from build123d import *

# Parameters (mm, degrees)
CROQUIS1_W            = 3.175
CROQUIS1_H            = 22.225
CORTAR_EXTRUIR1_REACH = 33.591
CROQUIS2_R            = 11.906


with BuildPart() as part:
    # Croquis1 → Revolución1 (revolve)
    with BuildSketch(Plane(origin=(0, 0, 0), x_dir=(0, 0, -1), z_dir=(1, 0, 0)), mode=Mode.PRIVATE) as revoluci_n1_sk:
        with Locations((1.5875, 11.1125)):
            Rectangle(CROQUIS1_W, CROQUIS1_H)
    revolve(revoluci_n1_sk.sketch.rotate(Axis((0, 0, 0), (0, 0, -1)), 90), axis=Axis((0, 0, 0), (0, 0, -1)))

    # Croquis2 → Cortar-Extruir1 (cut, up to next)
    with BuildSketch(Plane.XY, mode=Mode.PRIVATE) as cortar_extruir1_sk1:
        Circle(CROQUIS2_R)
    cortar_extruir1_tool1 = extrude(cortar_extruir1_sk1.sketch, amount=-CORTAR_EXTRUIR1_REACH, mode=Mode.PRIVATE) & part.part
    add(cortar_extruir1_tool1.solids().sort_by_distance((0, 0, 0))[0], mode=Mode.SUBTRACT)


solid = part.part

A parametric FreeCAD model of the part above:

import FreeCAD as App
import Part
import Sketcher
Q = App.Units.Quantity


def add_polygon(sketch, points):
    """Adds a closed chain of lines whose ends are joined by coincident constraints."""
    first, n = sketch.GeometryCount, len(points)
    for a, b in zip(points, points[1:] + points[:1]):
        sketch.addGeometry(Part.LineSegment(App.Vector(*a, 0), App.Vector(*b, 0)), False)
    for i in range(n):
        sketch.addConstraint(Sketcher.Constraint("Coincident", first + i, 2, first + (i + 1) % n, 1))

doc = App.newDocument("Part")
params = doc.addObject("Spreadsheet::Sheet", "Params")
for row, (alias, value) in enumerate([
    ("sketch1_width", "0.875 in"),
    ("sketch1_height", "0.125 in"),
    ("revolution_angle", "360 deg"),
], start=1):
    params.set(f"A{row}", alias)
    params.set(f"B{row}", "=" + value)
    params.setAlias(f"B{row}", alias)

body = doc.addObject("PartDesign::Body", "Body")

sketch1 = body.newObject("Sketcher::SketchObject", "Sketch")
sketch1.AttachmentSupport = (doc.getObject("YZ_Plane"), [""])
sketch1.MapMode = "FlatFace"
add_polygon(sketch1, [(22.225, 0), (0, 0), (0, -3.175), (22.225, -3.175)])
sketch1.addConstraint(Sketcher.Constraint("Horizontal", 0))
sketch1.addConstraint(Sketcher.Constraint("Vertical", 1))
sketch1.addConstraint(Sketcher.Constraint("Horizontal", 2))
sketch1.addConstraint(Sketcher.Constraint("Vertical", 3))
sketch1.addConstraint(Sketcher.Constraint("Coincident", 0, 2, -1, 1))
sketch1.addConstraint(Sketcher.Constraint("DistanceX", 0, 2, 0, 1, Q("0.875 in")))
sketch1.addConstraint(Sketcher.Constraint("DistanceY", 1, 2, 1, 1, Q("0.125 in")))
sketch1.setExpression("Constraints[9]", "Params.sketch1_width")
sketch1.setExpression("Constraints[10]", "Params.sketch1_height")
revolution = body.newObject("PartDesign::Revolution", "Revolution")
revolution.Profile = sketch1
revolution.ReferenceAxis = (sketch1, ["V_Axis"])
revolution.setExpression("Angle", "Params.revolution_angle")

sketch2 = body.newObject("Sketcher::SketchObject", "Sketch001")
sketch2.AttachmentSupport = (doc.getObject("XY_Plane"), [""])
sketch2.MapMode = "FlatFace"
sketch2.addGeometry(Part.Circle(App.Vector(0, 0, 0), App.Vector(0, 0, 1), 11.906), False)
sketch2.addConstraint(Sketcher.Constraint("Coincident", 0, 3, -1, 1))
sketch2.addConstraint(Sketcher.Constraint("Diameter", 0, 23.812))
pocket1 = body.newObject("PartDesign::Pocket", "Pocket")
pocket1.Profile = sketch2
pocket1.Type = "UpToFirst"

doc.recompute()
